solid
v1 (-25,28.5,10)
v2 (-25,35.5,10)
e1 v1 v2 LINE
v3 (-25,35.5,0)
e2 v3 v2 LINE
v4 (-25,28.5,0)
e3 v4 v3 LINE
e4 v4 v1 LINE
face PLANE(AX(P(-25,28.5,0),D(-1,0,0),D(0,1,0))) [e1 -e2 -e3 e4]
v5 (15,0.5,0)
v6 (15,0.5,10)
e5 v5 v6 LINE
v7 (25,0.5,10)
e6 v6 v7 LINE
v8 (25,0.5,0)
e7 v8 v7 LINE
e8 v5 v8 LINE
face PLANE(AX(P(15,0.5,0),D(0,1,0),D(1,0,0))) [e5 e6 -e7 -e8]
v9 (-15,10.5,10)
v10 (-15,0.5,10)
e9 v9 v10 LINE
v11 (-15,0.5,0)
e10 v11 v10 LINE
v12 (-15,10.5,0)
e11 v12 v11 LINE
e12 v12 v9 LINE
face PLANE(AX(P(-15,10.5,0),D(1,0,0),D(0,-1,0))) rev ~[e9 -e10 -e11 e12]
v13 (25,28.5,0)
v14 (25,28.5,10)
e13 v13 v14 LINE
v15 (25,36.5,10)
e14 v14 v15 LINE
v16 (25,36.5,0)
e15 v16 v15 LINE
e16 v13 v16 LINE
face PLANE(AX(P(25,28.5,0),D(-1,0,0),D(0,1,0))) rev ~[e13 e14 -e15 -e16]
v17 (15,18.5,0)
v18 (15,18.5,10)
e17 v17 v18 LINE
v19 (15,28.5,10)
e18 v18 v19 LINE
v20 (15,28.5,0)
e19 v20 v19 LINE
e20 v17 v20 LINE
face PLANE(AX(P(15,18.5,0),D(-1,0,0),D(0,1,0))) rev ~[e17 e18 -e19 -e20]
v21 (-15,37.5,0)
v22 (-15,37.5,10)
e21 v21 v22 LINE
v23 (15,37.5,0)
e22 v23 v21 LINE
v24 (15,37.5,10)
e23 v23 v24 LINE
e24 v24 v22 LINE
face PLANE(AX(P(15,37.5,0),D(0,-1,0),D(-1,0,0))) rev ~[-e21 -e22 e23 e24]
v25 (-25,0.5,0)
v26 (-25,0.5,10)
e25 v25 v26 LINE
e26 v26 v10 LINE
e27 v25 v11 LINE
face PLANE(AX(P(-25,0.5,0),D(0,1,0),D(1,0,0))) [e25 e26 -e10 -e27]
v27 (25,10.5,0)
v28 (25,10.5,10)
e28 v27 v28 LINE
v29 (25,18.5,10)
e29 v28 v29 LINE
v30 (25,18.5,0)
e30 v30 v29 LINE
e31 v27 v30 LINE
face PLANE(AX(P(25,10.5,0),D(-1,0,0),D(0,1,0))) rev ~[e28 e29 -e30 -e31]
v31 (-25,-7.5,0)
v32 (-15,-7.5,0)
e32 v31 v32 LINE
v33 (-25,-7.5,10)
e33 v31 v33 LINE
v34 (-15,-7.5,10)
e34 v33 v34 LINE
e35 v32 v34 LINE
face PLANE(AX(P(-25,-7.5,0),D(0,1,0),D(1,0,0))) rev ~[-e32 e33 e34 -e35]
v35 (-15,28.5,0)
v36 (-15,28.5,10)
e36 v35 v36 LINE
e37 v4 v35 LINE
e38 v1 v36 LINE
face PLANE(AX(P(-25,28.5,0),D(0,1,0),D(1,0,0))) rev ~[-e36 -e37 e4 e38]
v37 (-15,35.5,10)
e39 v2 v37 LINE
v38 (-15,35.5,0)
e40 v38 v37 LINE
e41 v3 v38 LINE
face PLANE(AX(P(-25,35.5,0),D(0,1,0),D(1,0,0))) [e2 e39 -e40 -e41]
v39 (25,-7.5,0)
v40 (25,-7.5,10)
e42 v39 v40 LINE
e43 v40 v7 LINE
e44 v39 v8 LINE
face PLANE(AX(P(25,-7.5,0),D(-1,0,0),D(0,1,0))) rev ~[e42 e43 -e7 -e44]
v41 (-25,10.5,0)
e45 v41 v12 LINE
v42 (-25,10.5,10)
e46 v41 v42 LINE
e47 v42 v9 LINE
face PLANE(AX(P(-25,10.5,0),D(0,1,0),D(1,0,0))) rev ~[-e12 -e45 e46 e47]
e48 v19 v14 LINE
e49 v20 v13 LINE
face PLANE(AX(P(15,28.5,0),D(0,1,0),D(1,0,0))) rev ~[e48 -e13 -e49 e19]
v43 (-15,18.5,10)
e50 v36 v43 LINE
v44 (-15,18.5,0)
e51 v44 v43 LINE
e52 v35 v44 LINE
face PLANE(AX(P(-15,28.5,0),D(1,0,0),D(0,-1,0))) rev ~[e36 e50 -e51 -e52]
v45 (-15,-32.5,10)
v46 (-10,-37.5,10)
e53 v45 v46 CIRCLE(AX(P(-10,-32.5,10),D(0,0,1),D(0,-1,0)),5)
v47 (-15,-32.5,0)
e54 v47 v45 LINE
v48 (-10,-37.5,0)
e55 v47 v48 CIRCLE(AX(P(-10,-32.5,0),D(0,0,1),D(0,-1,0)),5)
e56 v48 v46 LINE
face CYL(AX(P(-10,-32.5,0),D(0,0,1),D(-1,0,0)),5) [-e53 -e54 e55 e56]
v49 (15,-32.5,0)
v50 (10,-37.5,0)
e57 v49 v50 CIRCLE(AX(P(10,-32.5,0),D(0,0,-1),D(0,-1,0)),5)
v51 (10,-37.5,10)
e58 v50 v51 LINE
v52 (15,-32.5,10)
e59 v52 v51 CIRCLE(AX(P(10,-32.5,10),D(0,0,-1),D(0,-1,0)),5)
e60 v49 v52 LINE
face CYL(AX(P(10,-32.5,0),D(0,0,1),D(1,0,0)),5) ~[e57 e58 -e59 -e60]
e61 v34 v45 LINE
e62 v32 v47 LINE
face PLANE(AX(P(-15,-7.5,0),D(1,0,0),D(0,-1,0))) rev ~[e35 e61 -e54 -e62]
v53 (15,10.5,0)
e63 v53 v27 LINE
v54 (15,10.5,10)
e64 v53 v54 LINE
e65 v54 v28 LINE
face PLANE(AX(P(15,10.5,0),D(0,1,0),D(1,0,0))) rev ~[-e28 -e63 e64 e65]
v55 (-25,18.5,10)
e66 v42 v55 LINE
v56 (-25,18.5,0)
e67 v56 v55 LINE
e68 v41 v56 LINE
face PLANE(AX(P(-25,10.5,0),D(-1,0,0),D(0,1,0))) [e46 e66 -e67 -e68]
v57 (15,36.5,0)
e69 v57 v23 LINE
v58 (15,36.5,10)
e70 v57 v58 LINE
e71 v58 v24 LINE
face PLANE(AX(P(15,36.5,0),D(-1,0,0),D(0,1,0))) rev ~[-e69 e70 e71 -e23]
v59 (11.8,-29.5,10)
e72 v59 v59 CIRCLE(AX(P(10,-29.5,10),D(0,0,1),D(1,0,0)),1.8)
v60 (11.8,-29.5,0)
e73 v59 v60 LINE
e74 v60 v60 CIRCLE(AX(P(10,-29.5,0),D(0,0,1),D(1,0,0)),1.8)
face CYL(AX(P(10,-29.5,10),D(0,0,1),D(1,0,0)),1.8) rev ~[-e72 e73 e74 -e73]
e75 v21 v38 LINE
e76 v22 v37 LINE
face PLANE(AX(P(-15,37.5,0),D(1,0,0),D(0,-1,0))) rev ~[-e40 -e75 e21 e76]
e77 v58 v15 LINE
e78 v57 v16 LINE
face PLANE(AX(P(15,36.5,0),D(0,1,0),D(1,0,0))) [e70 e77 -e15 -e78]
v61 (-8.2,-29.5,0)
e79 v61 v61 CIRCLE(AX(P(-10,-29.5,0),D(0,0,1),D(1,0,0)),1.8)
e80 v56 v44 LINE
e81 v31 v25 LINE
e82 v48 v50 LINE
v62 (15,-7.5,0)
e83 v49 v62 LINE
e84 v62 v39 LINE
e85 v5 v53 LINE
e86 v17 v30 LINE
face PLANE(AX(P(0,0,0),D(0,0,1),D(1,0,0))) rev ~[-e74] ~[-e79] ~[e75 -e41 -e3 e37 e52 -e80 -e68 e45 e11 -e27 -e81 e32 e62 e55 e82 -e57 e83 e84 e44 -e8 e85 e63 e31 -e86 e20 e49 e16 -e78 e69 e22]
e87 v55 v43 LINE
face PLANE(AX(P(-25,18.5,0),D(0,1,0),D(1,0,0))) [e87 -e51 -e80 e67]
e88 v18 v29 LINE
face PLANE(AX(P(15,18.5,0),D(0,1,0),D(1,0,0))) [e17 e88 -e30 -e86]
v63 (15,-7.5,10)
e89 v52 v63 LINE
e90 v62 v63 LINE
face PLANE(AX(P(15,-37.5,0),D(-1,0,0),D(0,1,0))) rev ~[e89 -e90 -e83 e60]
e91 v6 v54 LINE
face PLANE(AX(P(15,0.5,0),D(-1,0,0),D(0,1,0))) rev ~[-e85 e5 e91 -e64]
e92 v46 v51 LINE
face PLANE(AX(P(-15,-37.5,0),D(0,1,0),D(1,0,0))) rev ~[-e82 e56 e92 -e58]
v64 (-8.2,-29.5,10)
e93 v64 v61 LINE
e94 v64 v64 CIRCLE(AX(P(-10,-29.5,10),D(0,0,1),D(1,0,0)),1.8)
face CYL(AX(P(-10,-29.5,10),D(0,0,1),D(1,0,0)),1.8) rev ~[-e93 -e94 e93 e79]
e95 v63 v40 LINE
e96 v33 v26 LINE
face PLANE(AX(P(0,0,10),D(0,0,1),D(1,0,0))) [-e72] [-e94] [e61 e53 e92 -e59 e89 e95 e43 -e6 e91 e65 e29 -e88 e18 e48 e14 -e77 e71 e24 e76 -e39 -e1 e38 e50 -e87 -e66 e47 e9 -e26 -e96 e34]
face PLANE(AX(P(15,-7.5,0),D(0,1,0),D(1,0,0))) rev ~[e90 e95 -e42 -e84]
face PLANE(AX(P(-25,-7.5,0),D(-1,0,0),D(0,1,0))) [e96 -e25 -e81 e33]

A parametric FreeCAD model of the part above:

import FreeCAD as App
import Part
import Sketcher
Q = App.Units.Quantity


def edges_at(feature, points):
    """Names of the edges that pass closest to the given points."""
    edges = feature.Shape.Edges
    near = lambda p: min(range(len(edges)), key=lambda i: edges[i].distToShape(Part.Vertex(*p))[0])
    return sorted({f"Edge{near(p) + 1}" for p in points})

doc = App.newDocument("Part")
params = doc.addObject("Spreadsheet::Sheet", "Params")
for row, (alias, value) in enumerate([
    ("sketch1_width", "30 mm"),
    ("sketch1_width2", "10 mm"),
    ("sketch1_height", "2 mm"),
    ("sketch1_height2", "7 mm"),
    ("sketch1_height3", "8 mm"),
    ("pad1_length", "10 mm"),
    ("sketch2_diameter", "3.6 mm"),
    ("pocket1_length", "10 mm"),
    ("fillet_radius", "5 mm"),
], start=1):
    params.set(f"A{row}", alias)
    params.set(f"B{row}", "=" + value)
    params.setAlias(f"B{row}", alias)

body = doc.addObject("PartDesign::Body", "Body")

sketch1 = doc.addObject("Sketcher::SketchObject", "Sketch")
body.addObject(sketch1)
sketch1.AttachmentSupport = (doc.XY_Plane, [""])
sketch1.MapMode = "FlatFace"
sketch1.addGeometry(Part.LineSegment(App.Vector(15, 37.5, 0), App.Vector(-15, 37.5, 0)), False)
sketch1.addGeometry(Part.LineSegment(App.Vector(-15, 37.5, 0), App.Vector(-15, 35.5, 0)), False)
sketch1.addGeometry(Part.LineSegment(App.Vector(-15, 35.5, 0), App.Vector(-25, 35.5, 0)), False)
sketch1.addGeometry(Part.LineSegment(App.Vector(-25, 35.5, 0), App.Vector(-25, 28.5, 0)), False)
sketch1.addGeometry(Part.LineSegment(App.Vector(-25, 28.5, 0), App.Vector(-15, 28.5, 0)), False)
sketch1.addGeometry(Part.LineSegment(App.Vector(-15, 28.5, 0), App.Vector(-15, 18.5, 0)), False)
sketch1.addGeometry(Part.LineSegment(App.Vector(-15, 18.5, 0), App.Vector(-25, 18.5, 0)), False)
sketch1.addGeometry(Part.LineSegment(App.Vector(-25, 18.5, 0), App.Vector(-25, 10.5, 0)), False)
sketch1.addGeometry(Part.LineSegment(App.Vector(-25, 10.5, 0), App.Vector(-15, 10.5, 0)), False)
sketch1.addGeometry(Part.LineSegment(App.Vector(-15, 10.5, 0), App.Vector(-15, 0.5, 0)), False)
sketch1.addGeometry(Part.LineSegment(App.Vector(-15, 0.5, 0), App.Vector(-25, 0.5, 0)), False)
sketch1.addGeometry(Part.LineSegment(App.Vector(-25, 0.5, 0), App.Vector(-25, -7.5, 0)), False)
sketch1.addGeometry(Part.LineSegment(App.Vector(-25, -7.5, 0), App.Vector(-15, -7.5, 0)), False)
sketch1.addGeometry(Part.LineSegment(App.Vector(-15, -7.5, 0), App.Vector(-15, -37.5, 0)), False)
sketch1.addGeometry(Part.LineSegment(App.Vector(-15, -37.5, 0), App.Vector(15, -37.5, 0)), False)
sketch1.addGeometry(Part.LineSegment(App.Vector(15, -37.5, 0), App.Vector(15, -7.5, 0)), False)
sketch1.addGeometry(Part.LineSegment(App.Vector(15, -7.5, 0), App.Vector(25, -7.5, 0)), False)
sketch1.addGeometry(Part.LineSegment(App.Vector(25, -7.5, 0), App.Vector(25, 0.5, 0)), False)
sketch1.addGeometry(Part.LineSegment(App.Vector(25, 0.5, 0), App.Vector(15, 0.5, 0)), False)
sketch1.addGeometry(Part.LineSegment(App.Vector(15, 0.5, 0), App.Vector(15, 10.5, 0)), False)
sketch1.addGeometry(Part.LineSegment(App.Vector(15, 10.5, 0), App.Vector(25, 10.5, 0)), False)
sketch1.addGeometry(Part.LineSegment(App.Vector(25, 10.5, 0), App.Vector(25, 18.5, 0)), False)
sketch1.addGeometry(Part.LineSegment(App.Vector(25, 18.5, 0), App.Vector(15, 18.5, 0)), False)
sketch1.addGeometry(Part.LineSegment(App.Vector(15, 18.5, 0), App.Vector(15, 28.5, 0)), False)
sketch1.addGeometry(Part.LineSegment(App.Vector(15, 28.5, 0), App.Vector(25, 28.5, 0)), False)
sketch1.addGeometry(Part.LineSegment(App.Vector(25, 28.5, 0), App.Vector(25, 36.5, 0)), False)
sketch1.addGeometry(Part.LineSegment(App.Vector(25, 36.5, 0), App.Vector(15, 36.5, 0)), False)
sketch1.addGeometry(Part.LineSegment(App.Vector(15, 36.5, 0), App.Vector(15, 37.5, 0)), False)
sketch1.addConstraint(Sketcher.Constraint("Coincident", 0, 2, 1, 1))
sketch1.addConstraint(Sketcher.Constraint("Coincident", 1, 2, 2, 1))
sketch1.addConstraint(Sketcher.Constraint("Coincident", 2, 2, 3, 1))
sketch1.addConstraint(Sketcher.Constraint("Coincident", 3, 2, 4, 1))
sketch1.addConstraint(Sketcher.Constraint("Coincident", 4, 2, 5, 1))
sketch1.addConstraint(Sketcher.Constraint("Coincident", 5, 2, 6, 1))
sketch1.addConstraint(Sketcher.Constraint("Coincident", 6, 2, 7, 1))
sketch1.addConstraint(Sketcher.Constraint("Coincident", 7, 2, 8, 1))
sketch1.addConstraint(Sketcher.Constraint("Coincident", 8, 2, 9, 1))
sketch1.addConstraint(Sketcher.Constraint("Coincident", 9, 2, 10, 1))
sketch1.addConstraint(Sketcher.Constraint("Coincident", 10, 2, 11, 1))
sketch1.addConstraint(Sketcher.Constraint("Coincident", 11, 2, 12, 1))
sketch1.addConstraint(Sketcher.Constraint("Coincident", 12, 2, 13, 1))
sketch1.addConstraint(Sketcher.Constraint("Coincident", 13, 2, 14, 1))
sketch1.addConstraint(Sketcher.Constraint("Coincident", 14, 2, 15, 1))
sketch1.addConstraint(Sketcher.Constraint("Coincident", 15, 2, 16, 1))
sketch1.addConstraint(Sketcher.Constraint("Coincident", 16, 2, 17, 1))
sketch1.addConstraint(Sketcher.Constraint("Coincident", 17, 2, 18, 1))
sketch1.addConstraint(Sketcher.Constraint("Coincident", 18, 2, 19, 1))
sketch1.addConstraint(Sketcher.Constraint("Coincident", 19, 2, 20, 1))
sketch1.addConstraint(Sketcher.Constraint("Coincident", 20, 2, 21, 1))
sketch1.addConstraint(Sketcher.Constraint("Coincident", 21, 2, 22, 1))
sketch1.addConstraint(Sketcher.Constraint("Coincident", 22, 2, 23, 1))
sketch1.addConstraint(Sketcher.Constraint("Coincident", 23, 2, 24, 1))
sketch1.addConstraint(Sketcher.Constraint("Coincident", 24, 2, 25, 1))
sketch1.addConstraint(Sketcher.Constraint("Coincident", 25, 2, 26, 1))
sketch1.addConstraint(Sketcher.Constraint("Coincident", 26, 2, 27, 1))
sketch1.addConstraint(Sketcher.Constraint("Coincident", 27, 2, 0, 1))
sketch1.addConstraint(Sketcher.Constraint("Horizontal", 0))
sketch1.addConstraint(Sketcher.Constraint("Vertical", 1))
sketch1.addConstraint(Sketcher.Constraint("Horizontal", 2))
sketch1.addConstraint(Sketcher.Constraint("Vertical", 3))
sketch1.addConstraint(Sketcher.Constraint("Horizontal", 4))
sketch1.addConstraint(Sketcher.Constraint("Vertical", 5))
sketch1.addConstraint(Sketcher.Constraint("Horizontal", 6))
sketch1.addConstraint(Sketcher.Constraint("Vertical", 7))
sketch1.addConstraint(Sketcher.Constraint("Horizontal", 8))
sketch1.addConstraint(Sketcher.Constraint("Vertical", 9))
sketch1.addConstraint(Sketcher.Constraint("Horizontal", 10))
sketch1.addConstraint(Sketcher.Constraint("Vertical", 11))
sketch1.addConstraint(Sketcher.Constraint("Horizontal", 12))
sketch1.addConstraint(Sketcher.Constraint("Vertical", 13))
sketch1.addConstraint(Sketcher.Constraint("Horizontal", 14))
sketch1.addConstraint(Sketcher.Constraint("Vertical", 15))
sketch1.addConstraint(Sketcher.Constraint("Horizontal", 16))
sketch1.addConstraint(Sketcher.Constraint("Vertical", 17))
sketch1.addConstraint(Sketcher.Constraint("Horizontal", 18))
sketch1.addConstraint(Sketcher.Constraint("Vertical", 19))
sketch1.addConstraint(Sketcher.Constraint("Horizontal", 20))
sketch1.addConstraint(Sketcher.Constraint("Vertical", 21))
sketch1.addConstraint(Sketcher.Constraint("Horizontal", 22))
sketch1.addConstraint(Sketcher.Constraint("Vertical", 23))
sketch1.addConstraint(Sketcher.Constraint("Horizontal", 24))
sketch1.addConstraint(Sketcher.Constraint("Vertical", 25))
sketch1.addConstraint(Sketcher.Constraint("Horizontal", 26))
sketch1.addConstraint(Sketcher.Constraint("Vertical", 27))
sketch1.addConstraint(Sketcher.Constraint("Symmetric", 0, 2, 14, 2, -1, 1))
sketch1.addConstraint(Sketcher.Constraint("Symmetric", 12, 2, 15, 2, -2))
sketch1.addConstraint(Sketcher.Constraint("Symmetric", 10, 2, 17, 2, -2))
sketch1.addConstraint(Sketcher.Constraint("Symmetric", 8, 2, 19, 2, -2))
sketch1.addConstraint(Sketcher.Constraint("Symmetric", 6, 2, 21, 2, -2))
sketch1.addConstraint(Sketcher.Constraint("Symmetric", 4, 2, 23, 2, -2))
sketch1.addConstraint(Sketcher.Constraint("Vertical", 1, 2, 4, 2))
sketch1.addConstraint(Sketcher.Constraint("Vertical", 3, 2, 6, 2))
sketch1.addConstraint(Sketcher.Constraint("Vertical", 5, 2, 8, 2))
sketch1.addConstraint(Sketcher.Constraint("Vertical", 7, 2, 10, 2))
sketch1.addConstraint(Sketcher.Constraint("Vertical", 21, 2, 24, 2))
sketch1.addConstraint(Sketcher.Constraint("Vertical", 23, 2, 26, 2))
sketch1.addConstraint(Sketcher.Constraint("Equal", 26, 5))
sketch1.addConstraint(Sketcher.Constraint("Equal", 5, 9))
sketch1.addConstraint(Sketcher.Constraint("Equal", 7, 11))
sketch1.addConstraint(Sketcher.Constraint("Equal", 14, 13))
sketch1.addConstraint(Sketcher.Constraint("Equal", 21, 25))
sketch1.addConstraint(Sketcher.Constraint("DistanceX", 0, 2, 0, 1, Q("30 mm")))
sketch1.addConstraint(Sketcher.Constraint("DistanceX", 2, 2, 2, 1, Q("10 mm")))
sketch1.addConstraint(Sketcher.Constraint("DistanceY", 1, 2, 1, 1, Q("2 mm")))
sketch1.addConstraint(Sketcher.Constraint("DistanceY", 3, 2, 3, 1, Q("7 mm")))
sketch1.addConstraint(Sketcher.Constraint("DistanceY", 7, 2, 7, 1, Q("8 mm")))
sketch1.setExpression("Constraints[73]", "Params.sketch1_width")
sketch1.setExpression("Constraints[74]", "Params.sketch1_width2")
sketch1.setExpression("Constraints[75]", "Params.sketch1_height")
sketch1.setExpression("Constraints[76]", "Params.sketch1_height2")
sketch1.setExpression("Constraints[77]", "Params.sketch1_height3")
pad1 = doc.addObject("PartDesign::Pad", "Pad")
body.addObject(pad1)
pad1.Profile = sketch1
pad1.setExpression("Length", "Params.pad1_length")

sketch2 = doc.addObject("Sketcher::SketchObject", "Sketch001")
body.addObject(sketch2)
sketch2.AttachmentSupport = (doc.XY_Plane, [""])
sketch2.MapMode = "FlatFace"
sketch2.AttachmentOffset = App.Placement(App.Vector(0, 0, 10), App.Rotation())
sketch2.addGeometry(Part.Circle(App.Vector(-10, -29.5, 0), App.Vector(0, 0, 1), 1.8), False)
sketch2.addGeometry(Part.Circle(App.Vector(10, -29.5, 0), App.Vector(0, 0, 1), 1.8), False)
sketch2.addConstraint(Sketcher.Constraint("Equal", 0, 1))
sketch2.addConstraint(Sketcher.Constraint("Symmetric", 0, 3, 1, 3, -2))
sketch2.addConstraint(Sketcher.Constraint("Diameter", 0, Q("3.6 mm")))
sketch2.addConstraint(Sketcher.Constraint("DistanceX", 0, 3, -1, 1, Q("10 mm")))
sketch2.addConstraint(Sketcher.Constraint("DistanceY", 0, 3, -1, 1, Q("29.5 mm")))
sketch2.setExpression("Constraints[2]", "Params.sketch2_diameter")
pocket1 = doc.addObject("PartDesign::Pocket", "Pocket")
body.addObject(pocket1)
pocket1.Profile = sketch2
pocket1.setExpression("Length", "Params.pocket1_length")
doc.recompute()

fillet = doc.addObject("PartDesign::Fillet", "Fillet")
body.addObject(fillet)
fillet.Base = (pocket1, edges_at(pocket1, [(15, -37.5, 5), (-15, -37.5, 5)]))
fillet.setExpression("Radius", "Params.fillet_radius")

doc.recompute()
